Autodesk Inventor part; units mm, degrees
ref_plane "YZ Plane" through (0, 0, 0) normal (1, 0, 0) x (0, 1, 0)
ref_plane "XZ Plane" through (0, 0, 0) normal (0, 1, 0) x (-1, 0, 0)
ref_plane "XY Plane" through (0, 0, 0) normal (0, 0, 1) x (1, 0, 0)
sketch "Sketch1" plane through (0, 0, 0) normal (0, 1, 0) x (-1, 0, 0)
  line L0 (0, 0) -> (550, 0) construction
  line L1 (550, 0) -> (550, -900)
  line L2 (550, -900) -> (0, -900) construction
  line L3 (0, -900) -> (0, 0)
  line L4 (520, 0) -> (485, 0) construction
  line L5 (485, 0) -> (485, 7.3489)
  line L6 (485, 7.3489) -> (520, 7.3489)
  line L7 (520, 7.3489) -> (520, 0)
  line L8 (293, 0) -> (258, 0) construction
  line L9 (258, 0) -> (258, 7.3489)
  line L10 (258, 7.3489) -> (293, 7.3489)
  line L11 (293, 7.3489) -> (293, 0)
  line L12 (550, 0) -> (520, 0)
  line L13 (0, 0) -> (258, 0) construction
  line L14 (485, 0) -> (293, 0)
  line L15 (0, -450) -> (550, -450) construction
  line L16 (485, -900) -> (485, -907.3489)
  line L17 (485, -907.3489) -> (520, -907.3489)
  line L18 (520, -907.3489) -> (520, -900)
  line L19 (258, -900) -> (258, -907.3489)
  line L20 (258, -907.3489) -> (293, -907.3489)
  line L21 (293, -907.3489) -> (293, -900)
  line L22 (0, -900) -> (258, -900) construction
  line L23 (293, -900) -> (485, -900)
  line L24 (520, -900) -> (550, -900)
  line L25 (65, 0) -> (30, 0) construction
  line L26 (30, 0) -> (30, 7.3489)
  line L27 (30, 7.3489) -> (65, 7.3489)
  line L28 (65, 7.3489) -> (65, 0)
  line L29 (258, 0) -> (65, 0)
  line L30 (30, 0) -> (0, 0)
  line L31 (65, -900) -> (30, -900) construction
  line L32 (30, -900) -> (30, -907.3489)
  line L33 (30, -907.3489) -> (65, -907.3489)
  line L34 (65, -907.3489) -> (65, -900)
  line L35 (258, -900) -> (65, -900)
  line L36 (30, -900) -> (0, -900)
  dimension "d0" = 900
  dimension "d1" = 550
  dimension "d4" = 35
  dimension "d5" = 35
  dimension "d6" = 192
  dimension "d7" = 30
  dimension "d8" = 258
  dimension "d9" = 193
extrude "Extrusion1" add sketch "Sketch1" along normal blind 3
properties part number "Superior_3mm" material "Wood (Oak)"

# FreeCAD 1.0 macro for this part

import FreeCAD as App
import Part
import Sketcher

doc = App.newDocument("Part")
params = doc.addObject("Spreadsheet::Sheet", "Params")
for row, (alias, value) in enumerate([
    ("sketch1_width", "30 mm"),
    ("sketch1_width2", "35 mm"),
    ("sketch1_width3", "192 mm"),
    ("sketch1_width4", "193 mm"),
    ("sketch1_height", "900 mm"),
    ("pad1_length", "3 mm"),
], start=1):
    params.set(f"A{row}", alias)
    params.set(f"B{row}", "=" + value)
    params.setAlias(f"B{row}", alias)

body = doc.addObject("PartDesign::Body", "Body")

sketch1 = doc.addObject("Sketcher::SketchObject", "Sketch")
body.addObject(sketch1)
sketch1.AttachmentSupport = (doc.XZ_Plane, [""])
sketch1.MapMode = "FlatFace"
sketch1.addGeometry([
    Part.LineSegment(App.Vector(-550, -900, 0), App.Vector(-550, 0, 0)),
    Part.LineSegment(App.Vector(-550, 0, 0), App.Vector(-520, 0, 0)),
    Part.LineSegment(App.Vector(-520, 0, 0), App.Vector(-520, 7, 0)),
    Part.LineSegment(App.Vector(-520, 7, 0), App.Vector(-485, 7, 0)),
    Part.LineSegment(App.Vector(-485, 7, 0), App.Vector(-485, 0, 0)),
    Part.LineSegment(App.Vector(-485, 0, 0), App.Vector(-293, 0, 0)),
    Part.LineSegment(App.Vector(-293, 0, 0), App.Vector(-293, 7, 0)),
    Part.LineSegment(App.Vector(-293, 7, 0), App.Vector(-258, 7, 0)),
    Part.LineSegment(App.Vector(-258, 7, 0), App.Vector(-258, 0, 0)),
    Part.LineSegment(App.Vector(-258, 0, 0), App.Vector(-65, 0, 0)),
    Part.LineSegment(App.Vector(-65, 0, 0), App.Vector(-65, 7, 0)),
    Part.LineSegment(App.Vector(-65, 7, 0), App.Vector(-30, 7, 0)),
    Part.LineSegment(App.Vector(-30, 7, 0), App.Vector(-30, 0, 0)),
    Part.LineSegment(App.Vector(-30, 0, 0), App.Vector(0, 0, 0)),
    Part.LineSegment(App.Vector(0, 0, 0), App.Vector(0, -900, 0)),
    Part.LineSegment(App.Vector(0, -900, 0), App.Vector(-30, -900, 0)),
    Part.LineSegment(App.Vector(-30, -900, 0), App.Vector(-30, -907, 0)),
    Part.LineSegment(App.Vector(-30, -907, 0), App.Vector(-65, -907, 0)),
    Part.LineSegment(App.Vector(-65, -907, 0), App.Vector(-65, -900, 0)),
    Part.LineSegment(App.Vector(-65, -900, 0), App.Vector(-258, -900, 0)),
    Part.LineSegment(App.Vector(-258, -900, 0), App.Vector(-258, -907, 0)),
    Part.LineSegment(App.Vector(-258, -907, 0), App.Vector(-293, -907, 0)),
    Part.LineSegment(App.Vector(-293, -907, 0), App.Vector(-293, -900, 0)),
    Part.LineSegment(App.Vector(-293, -900, 0), App.Vector(-485, -900, 0)),
    Part.LineSegment(App.Vector(-485, -900, 0), App.Vector(-485, -907, 0)),
    Part.LineSegment(App.Vector(-485, -907, 0), App.Vector(-520, -907, 0)),
    Part.LineSegment(App.Vector(-520, -907, 0), App.Vector(-520, -900, 0)),
    Part.LineSegment(App.Vector(-520, -900, 0), App.Vector(-550, -900, 0)),
], False)
sketch1.addConstraint([
    Sketcher.Constraint("Coincident", 0, 2, 1, 1),
    Sketcher.Constraint("Coincident", 1, 2, 2, 1),
    Sketcher.Constraint("Coincident", 2, 2, 3, 1),
    Sketcher.Constraint("Coincident", 3, 2, 4, 1),
    Sketcher.Constraint("Coincident", 4, 2, 5, 1),
    Sketcher.Constraint("Coincident", 5, 2, 6, 1),
    Sketcher.Constraint("Coincident", 6, 2, 7, 1),
    Sketcher.Constraint("Coincident", 7, 2, 8, 1),
    Sketcher.Constraint("Coincident", 8, 2, 9, 1),
    Sketcher.Constraint("Coincident", 9, 2, 10, 1),
    Sketcher.Constraint("Coincident", 10, 2, 11, 1),
    Sketcher.Constraint("Coincident", 11, 2, 12, 1),
    Sketcher.Constraint("Coincident", 12, 2, 13, 1),
    Sketcher.Constraint("Coincident", 13, 2, 14, 1),
    Sketcher.Constraint("Coincident", 14, 2, 15, 1),
    Sketcher.Constraint("Coincident", 15, 2, 16, 1),
    Sketcher.Constraint("Coincident", 16, 2, 17, 1),
    Sketcher.Constraint("Coincident", 17, 2, 18, 1),
    Sketcher.Constraint("Coincident", 18, 2, 19, 1),
    Sketcher.Constraint("Coincident", 19, 2, 20, 1),
    Sketcher.Constraint("Coincident", 20, 2, 21, 1),
    Sketcher.Constraint("Coincident", 21, 2, 22, 1),
    Sketcher.Constraint("Coincident", 22, 2, 23, 1),
    Sketcher.Constraint("Coincident", 23, 2, 24, 1),
    Sketcher.Constraint("Coincident", 24, 2, 25, 1),
    Sketcher.Constraint("Coincident", 25, 2, 26, 1),
    Sketcher.Constraint("Coincident", 26, 2, 27, 1),
    Sketcher.Constraint("Coincident", 27, 2, 0, 1),
    Sketcher.Constraint("Vertical", 0),
    Sketcher.Constraint("Horizontal", 1),
    Sketcher.Constraint("Vertical", 2),
    Sketcher.Constraint("Horizontal", 3),
    Sketcher.Constraint("Vertical", 4),
    Sketcher.Constraint("Horizontal", 5),
    Sketcher.Constraint("Vertical", 6),
    Sketcher.Constraint("Horizontal", 7),
    Sketcher.Constraint("Vertical", 8),
    Sketcher.Constraint("Horizontal", 9),
    Sketcher.Constraint("Vertical", 10),
    Sketcher.Constraint("Horizontal", 11),
    Sketcher.Constraint("Vertical", 12),
    Sketcher.Constraint("Horizontal", 13),
    Sketcher.Constraint("Vertical", 14),
    Sketcher.Constraint("Horizontal", 15),
    Sketcher.Constraint("Vertical", 16),
    Sketcher.Constraint("Horizontal", 17),
    Sketcher.Constraint("Vertical", 18),
    Sketcher.Constraint("Horizontal", 19),
    Sketcher.Constraint("Vertical", 20),
    Sketcher.Constraint("Horizontal", 21),
    Sketcher.Constraint("Vertical", 22),
    Sketcher.Constraint("Horizontal", 23),
    Sketcher.Constraint("Vertical", 24),
    Sketcher.Constraint("Horizontal", 25),
    Sketcher.Constraint("Vertical", 26),
    Sketcher.Constraint("Horizontal", 27),
    Sketcher.Constraint("Coincident", 13, 2, -1, 1),
    Sketcher.Constraint("PointOnObject", 0, 2, -1),
    Sketcher.Constraint("PointOnObject", 4, 2, -1),
    Sketcher.Constraint("PointOnObject", 8, 2, -1),
    Sketcher.Constraint("Horizontal", 3, 2, 6, 2),
    Sketcher.Constraint("Horizontal", 7, 2, 10, 2),
    Sketcher.Constraint("Horizontal", 15, 2, 18, 2),
    Sketcher.Constraint("Horizontal", 17, 2, 20, 2),
    Sketcher.Constraint("Horizontal", 19, 2, 22, 2),
    Sketcher.Constraint("Horizontal", 21, 2, 24, 2),
    Sketcher.Constraint("Horizontal", 23, 2, 26, 2),
    Sketcher.Constraint("Vertical", 12, 2, 15, 2),
    Sketcher.Constraint("Vertical", 10, 2, 17, 2),
    Sketcher.Constraint("Vertical", 8, 2, 19, 2),
    Sketcher.Constraint("Vertical", 6, 2, 21, 2),
    Sketcher.Constraint("Vertical", 4, 2, 23, 2),
    Sketcher.Constraint("Vertical", 2, 2, 25, 2),
    Sketcher.Constraint("Equal", 3, 7),
    Sketcher.Constraint("Equal", 7, 11),
    Sketcher.Constraint("Equal", 1, 13),
    Sketcher.Constraint("Equal", 12, 16),
    Sketcher.Constraint("DistanceX", 1, 1, 1, 2, 30.0),
    Sketcher.Constraint("DistanceX", 3, 1, 3, 2, 35.0),
    Sketcher.Constraint("DistanceX", 5, 1, 5, 2, 192.0),
    Sketcher.Constraint("DistanceX", 9, 1, 9, 2, 193.0),
    Sketcher.Constraint("DistanceY", 0, 1, 0, 2, 900.0),
    Sketcher.Constraint("DistanceY", 2, 1, 2, 2, 7.349),
])
sketch1.setExpression("Constraints[77]", "Params.sketch1_width")
sketch1.setExpression("Constraints[78]", "Params.sketch1_width2")
sketch1.setExpression("Constraints[79]", "Params.sketch1_width3")
sketch1.setExpression("Constraints[80]", "Params.sketch1_width4")
sketch1.setExpression("Constraints[81]", "Params.sketch1_height")
pad1 = doc.addObject("PartDesign::Pad", "Pad")
body.addObject(pad1)
pad1.Profile = sketch1
pad1.setExpression("Length", "Params.pad1_length")
pad1.Reversed = True

doc.recompute()
